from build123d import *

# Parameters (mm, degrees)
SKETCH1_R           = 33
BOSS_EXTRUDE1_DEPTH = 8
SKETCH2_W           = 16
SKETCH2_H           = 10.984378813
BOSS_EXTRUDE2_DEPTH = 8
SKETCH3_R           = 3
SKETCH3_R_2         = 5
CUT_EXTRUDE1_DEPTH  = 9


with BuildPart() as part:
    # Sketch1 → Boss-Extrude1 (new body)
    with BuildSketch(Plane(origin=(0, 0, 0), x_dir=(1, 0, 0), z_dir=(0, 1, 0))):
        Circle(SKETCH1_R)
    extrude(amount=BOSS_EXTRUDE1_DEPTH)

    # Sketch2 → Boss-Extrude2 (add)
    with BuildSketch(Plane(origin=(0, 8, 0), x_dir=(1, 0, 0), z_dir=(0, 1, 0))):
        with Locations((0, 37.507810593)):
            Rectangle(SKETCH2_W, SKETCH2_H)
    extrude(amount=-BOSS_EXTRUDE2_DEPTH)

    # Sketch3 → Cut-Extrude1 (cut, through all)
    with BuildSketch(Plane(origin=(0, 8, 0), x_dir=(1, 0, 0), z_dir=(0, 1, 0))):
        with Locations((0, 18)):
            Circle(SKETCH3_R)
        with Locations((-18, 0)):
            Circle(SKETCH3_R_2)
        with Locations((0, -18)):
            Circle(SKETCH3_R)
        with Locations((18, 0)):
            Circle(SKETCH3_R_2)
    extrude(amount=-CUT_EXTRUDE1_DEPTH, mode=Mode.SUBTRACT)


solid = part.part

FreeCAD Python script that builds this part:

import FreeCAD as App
import Part
import Sketcher
Q = App.Units.Quantity


def add_polygon(sketch, points):
    """Adds a closed chain of lines whose ends are joined by coincident constraints."""
    first, n = sketch.GeometryCount, len(points)
    for a, b in zip(points, points[1:] + points[:1]):
        sketch.addGeometry(Part.LineSegment(App.Vector(*a, 0), App.Vector(*b, 0)), False)
    for i in range(n):
        sketch.addConstraint(Sketcher.Constraint("Coincident", first + i, 2, first + (i + 1) % n, 1))

doc = App.newDocument("Part")
params = doc.addObject("Spreadsheet::Sheet", "Params")
for row, (alias, value) in enumerate([
    ("sketch1_diameter", "66 mm"),
    ("pad1_length", "8 mm"),
    ("sketch2_width", "16 mm"),
    ("pad2_length", "8 mm"),
    ("sketch3_diameter", "6 mm"),
    ("sketch3_diameter2", "10 mm"),
], start=1):
    params.set(f"A{row}", alias)
    params.set(f"B{row}", "=" + value)
    params.setAlias(f"B{row}", alias)

body = doc.addObject("PartDesign::Body", "Body")

sketch1 = doc.addObject("Sketcher::SketchObject", "Sketch")
body.addObject(sketch1)
sketch1.AttachmentSupport = (doc.XZ_Plane, [""])
sketch1.MapMode = "FlatFace"
sketch1.addGeometry(Part.Circle(App.Vector(0, 0, 0), App.Vector(0, 0, 1), 33), False)
sketch1.addConstraint([
    Sketcher.Constraint("Coincident", 0, 3, -1, 1),
    Sketcher.Constraint("Diameter", 0, Q("66 mm")),
])
sketch1.setExpression("Constraints[1]", "Params.sketch1_diameter")
pad1 = doc.addObject("PartDesign::Pad", "Pad")
body.addObject(pad1)
pad1.Profile = sketch1
pad1.setExpression("Length", "Params.pad1_length")
pad1.Reversed = True

sketch2 = doc.addObject("Sketcher::SketchObject", "Sketch001")
body.addObject(sketch2)
sketch2.AttachmentSupport = (doc.XZ_Plane, [""])
sketch2.MapMode = "FlatFace"
sketch2.AttachmentOffset = App.Placement(App.Vector(0, 0, -8), App.Rotation())
add_polygon(sketch2, [(-8, -43), (-8, -32.015621), (8, -32.015621), (8, -43)])
sketch2.addConstraint([
    Sketcher.Constraint("Vertical", 0),
    Sketcher.Constraint("Horizontal", 1),
    Sketcher.Constraint("Vertical", 2),
    Sketcher.Constraint("Horizontal", 3),
    Sketcher.Constraint("DistanceX", 1, 1, 1, 2, Q("16 mm")),
    Sketcher.Constraint("DistanceX", 0, 2, -1, 1, Q("8 mm")),
    Sketcher.Constraint("DistanceY", 2, 2, -1, 1, Q("43 mm")),
    Sketcher.Constraint("DistanceY", 0, 1, 0, 2, Q("10.984379 mm")),
])
sketch2.setExpression("Constraints[8]", "Params.sketch2_width")
pad2 = doc.addObject("PartDesign::Pad", "Pad001")
body.addObject(pad2)
pad2.Profile = sketch2
pad2.setExpression("Length", "Params.pad2_length")

sketch3 = doc.addObject("Sketcher::SketchObject", "Sketch002")
body.addObject(sketch3)
sketch3.AttachmentSupport = (doc.XZ_Plane, [""])
sketch3.MapMode = "FlatFace"
sketch3.AttachmentOffset = App.Placement(App.Vector(0, 0, -8), App.Rotation())
sketch3.addGeometry([
    Part.Circle(App.Vector(0, -18, 0), App.Vector(0, 0, 1), 3),
    Part.Circle(App.Vector(-18, 0, 0), App.Vector(0, 0, 1), 5),
    Part.Circle(App.Vector(0, 18, 0), App.Vector(0, 0, 1), 3),
    Part.Circle(App.Vector(18, 0, 0), App.Vector(0, 0, 1), 5),
], False)
sketch3.addConstraint([
    Sketcher.Constraint("Equal", 0, 2),
    Sketcher.Constraint("Equal", 1, 3),
    Sketcher.Constraint("Symmetric", 0, 3, 2, 3, -1, 1),
    Sketcher.Constraint("Symmetric", 1, 3, 3, 3, -1, 1),
    Sketcher.Constraint("PointOnObject", 0, 3, -2),
    Sketcher.Constraint("PointOnObject", 1, 3, -1),
    Sketcher.Constraint("Diameter", 0, Q("6 mm")),
    Sketcher.Constraint("Diameter", 1, Q("10 mm")),
    Sketcher.Constraint("DistanceY", 0, 3, -1, 1, Q("18 mm")),
    Sketcher.Constraint("DistanceX", 1, 3, -1, 1, Q("18 mm")),
])
sketch3.setExpression("Constraints[6]", "Params.sketch3_diameter")
sketch3.setExpression("Constraints[7]", "Params.sketch3_diameter2")
pocket1 = doc.addObject("PartDesign::Pocket", "Pocket")
body.addObject(pocket1)
pocket1.Profile = sketch3
pocket1.Type = "ThroughAll"
pocket1.Reversed = True

doc.recompute()
